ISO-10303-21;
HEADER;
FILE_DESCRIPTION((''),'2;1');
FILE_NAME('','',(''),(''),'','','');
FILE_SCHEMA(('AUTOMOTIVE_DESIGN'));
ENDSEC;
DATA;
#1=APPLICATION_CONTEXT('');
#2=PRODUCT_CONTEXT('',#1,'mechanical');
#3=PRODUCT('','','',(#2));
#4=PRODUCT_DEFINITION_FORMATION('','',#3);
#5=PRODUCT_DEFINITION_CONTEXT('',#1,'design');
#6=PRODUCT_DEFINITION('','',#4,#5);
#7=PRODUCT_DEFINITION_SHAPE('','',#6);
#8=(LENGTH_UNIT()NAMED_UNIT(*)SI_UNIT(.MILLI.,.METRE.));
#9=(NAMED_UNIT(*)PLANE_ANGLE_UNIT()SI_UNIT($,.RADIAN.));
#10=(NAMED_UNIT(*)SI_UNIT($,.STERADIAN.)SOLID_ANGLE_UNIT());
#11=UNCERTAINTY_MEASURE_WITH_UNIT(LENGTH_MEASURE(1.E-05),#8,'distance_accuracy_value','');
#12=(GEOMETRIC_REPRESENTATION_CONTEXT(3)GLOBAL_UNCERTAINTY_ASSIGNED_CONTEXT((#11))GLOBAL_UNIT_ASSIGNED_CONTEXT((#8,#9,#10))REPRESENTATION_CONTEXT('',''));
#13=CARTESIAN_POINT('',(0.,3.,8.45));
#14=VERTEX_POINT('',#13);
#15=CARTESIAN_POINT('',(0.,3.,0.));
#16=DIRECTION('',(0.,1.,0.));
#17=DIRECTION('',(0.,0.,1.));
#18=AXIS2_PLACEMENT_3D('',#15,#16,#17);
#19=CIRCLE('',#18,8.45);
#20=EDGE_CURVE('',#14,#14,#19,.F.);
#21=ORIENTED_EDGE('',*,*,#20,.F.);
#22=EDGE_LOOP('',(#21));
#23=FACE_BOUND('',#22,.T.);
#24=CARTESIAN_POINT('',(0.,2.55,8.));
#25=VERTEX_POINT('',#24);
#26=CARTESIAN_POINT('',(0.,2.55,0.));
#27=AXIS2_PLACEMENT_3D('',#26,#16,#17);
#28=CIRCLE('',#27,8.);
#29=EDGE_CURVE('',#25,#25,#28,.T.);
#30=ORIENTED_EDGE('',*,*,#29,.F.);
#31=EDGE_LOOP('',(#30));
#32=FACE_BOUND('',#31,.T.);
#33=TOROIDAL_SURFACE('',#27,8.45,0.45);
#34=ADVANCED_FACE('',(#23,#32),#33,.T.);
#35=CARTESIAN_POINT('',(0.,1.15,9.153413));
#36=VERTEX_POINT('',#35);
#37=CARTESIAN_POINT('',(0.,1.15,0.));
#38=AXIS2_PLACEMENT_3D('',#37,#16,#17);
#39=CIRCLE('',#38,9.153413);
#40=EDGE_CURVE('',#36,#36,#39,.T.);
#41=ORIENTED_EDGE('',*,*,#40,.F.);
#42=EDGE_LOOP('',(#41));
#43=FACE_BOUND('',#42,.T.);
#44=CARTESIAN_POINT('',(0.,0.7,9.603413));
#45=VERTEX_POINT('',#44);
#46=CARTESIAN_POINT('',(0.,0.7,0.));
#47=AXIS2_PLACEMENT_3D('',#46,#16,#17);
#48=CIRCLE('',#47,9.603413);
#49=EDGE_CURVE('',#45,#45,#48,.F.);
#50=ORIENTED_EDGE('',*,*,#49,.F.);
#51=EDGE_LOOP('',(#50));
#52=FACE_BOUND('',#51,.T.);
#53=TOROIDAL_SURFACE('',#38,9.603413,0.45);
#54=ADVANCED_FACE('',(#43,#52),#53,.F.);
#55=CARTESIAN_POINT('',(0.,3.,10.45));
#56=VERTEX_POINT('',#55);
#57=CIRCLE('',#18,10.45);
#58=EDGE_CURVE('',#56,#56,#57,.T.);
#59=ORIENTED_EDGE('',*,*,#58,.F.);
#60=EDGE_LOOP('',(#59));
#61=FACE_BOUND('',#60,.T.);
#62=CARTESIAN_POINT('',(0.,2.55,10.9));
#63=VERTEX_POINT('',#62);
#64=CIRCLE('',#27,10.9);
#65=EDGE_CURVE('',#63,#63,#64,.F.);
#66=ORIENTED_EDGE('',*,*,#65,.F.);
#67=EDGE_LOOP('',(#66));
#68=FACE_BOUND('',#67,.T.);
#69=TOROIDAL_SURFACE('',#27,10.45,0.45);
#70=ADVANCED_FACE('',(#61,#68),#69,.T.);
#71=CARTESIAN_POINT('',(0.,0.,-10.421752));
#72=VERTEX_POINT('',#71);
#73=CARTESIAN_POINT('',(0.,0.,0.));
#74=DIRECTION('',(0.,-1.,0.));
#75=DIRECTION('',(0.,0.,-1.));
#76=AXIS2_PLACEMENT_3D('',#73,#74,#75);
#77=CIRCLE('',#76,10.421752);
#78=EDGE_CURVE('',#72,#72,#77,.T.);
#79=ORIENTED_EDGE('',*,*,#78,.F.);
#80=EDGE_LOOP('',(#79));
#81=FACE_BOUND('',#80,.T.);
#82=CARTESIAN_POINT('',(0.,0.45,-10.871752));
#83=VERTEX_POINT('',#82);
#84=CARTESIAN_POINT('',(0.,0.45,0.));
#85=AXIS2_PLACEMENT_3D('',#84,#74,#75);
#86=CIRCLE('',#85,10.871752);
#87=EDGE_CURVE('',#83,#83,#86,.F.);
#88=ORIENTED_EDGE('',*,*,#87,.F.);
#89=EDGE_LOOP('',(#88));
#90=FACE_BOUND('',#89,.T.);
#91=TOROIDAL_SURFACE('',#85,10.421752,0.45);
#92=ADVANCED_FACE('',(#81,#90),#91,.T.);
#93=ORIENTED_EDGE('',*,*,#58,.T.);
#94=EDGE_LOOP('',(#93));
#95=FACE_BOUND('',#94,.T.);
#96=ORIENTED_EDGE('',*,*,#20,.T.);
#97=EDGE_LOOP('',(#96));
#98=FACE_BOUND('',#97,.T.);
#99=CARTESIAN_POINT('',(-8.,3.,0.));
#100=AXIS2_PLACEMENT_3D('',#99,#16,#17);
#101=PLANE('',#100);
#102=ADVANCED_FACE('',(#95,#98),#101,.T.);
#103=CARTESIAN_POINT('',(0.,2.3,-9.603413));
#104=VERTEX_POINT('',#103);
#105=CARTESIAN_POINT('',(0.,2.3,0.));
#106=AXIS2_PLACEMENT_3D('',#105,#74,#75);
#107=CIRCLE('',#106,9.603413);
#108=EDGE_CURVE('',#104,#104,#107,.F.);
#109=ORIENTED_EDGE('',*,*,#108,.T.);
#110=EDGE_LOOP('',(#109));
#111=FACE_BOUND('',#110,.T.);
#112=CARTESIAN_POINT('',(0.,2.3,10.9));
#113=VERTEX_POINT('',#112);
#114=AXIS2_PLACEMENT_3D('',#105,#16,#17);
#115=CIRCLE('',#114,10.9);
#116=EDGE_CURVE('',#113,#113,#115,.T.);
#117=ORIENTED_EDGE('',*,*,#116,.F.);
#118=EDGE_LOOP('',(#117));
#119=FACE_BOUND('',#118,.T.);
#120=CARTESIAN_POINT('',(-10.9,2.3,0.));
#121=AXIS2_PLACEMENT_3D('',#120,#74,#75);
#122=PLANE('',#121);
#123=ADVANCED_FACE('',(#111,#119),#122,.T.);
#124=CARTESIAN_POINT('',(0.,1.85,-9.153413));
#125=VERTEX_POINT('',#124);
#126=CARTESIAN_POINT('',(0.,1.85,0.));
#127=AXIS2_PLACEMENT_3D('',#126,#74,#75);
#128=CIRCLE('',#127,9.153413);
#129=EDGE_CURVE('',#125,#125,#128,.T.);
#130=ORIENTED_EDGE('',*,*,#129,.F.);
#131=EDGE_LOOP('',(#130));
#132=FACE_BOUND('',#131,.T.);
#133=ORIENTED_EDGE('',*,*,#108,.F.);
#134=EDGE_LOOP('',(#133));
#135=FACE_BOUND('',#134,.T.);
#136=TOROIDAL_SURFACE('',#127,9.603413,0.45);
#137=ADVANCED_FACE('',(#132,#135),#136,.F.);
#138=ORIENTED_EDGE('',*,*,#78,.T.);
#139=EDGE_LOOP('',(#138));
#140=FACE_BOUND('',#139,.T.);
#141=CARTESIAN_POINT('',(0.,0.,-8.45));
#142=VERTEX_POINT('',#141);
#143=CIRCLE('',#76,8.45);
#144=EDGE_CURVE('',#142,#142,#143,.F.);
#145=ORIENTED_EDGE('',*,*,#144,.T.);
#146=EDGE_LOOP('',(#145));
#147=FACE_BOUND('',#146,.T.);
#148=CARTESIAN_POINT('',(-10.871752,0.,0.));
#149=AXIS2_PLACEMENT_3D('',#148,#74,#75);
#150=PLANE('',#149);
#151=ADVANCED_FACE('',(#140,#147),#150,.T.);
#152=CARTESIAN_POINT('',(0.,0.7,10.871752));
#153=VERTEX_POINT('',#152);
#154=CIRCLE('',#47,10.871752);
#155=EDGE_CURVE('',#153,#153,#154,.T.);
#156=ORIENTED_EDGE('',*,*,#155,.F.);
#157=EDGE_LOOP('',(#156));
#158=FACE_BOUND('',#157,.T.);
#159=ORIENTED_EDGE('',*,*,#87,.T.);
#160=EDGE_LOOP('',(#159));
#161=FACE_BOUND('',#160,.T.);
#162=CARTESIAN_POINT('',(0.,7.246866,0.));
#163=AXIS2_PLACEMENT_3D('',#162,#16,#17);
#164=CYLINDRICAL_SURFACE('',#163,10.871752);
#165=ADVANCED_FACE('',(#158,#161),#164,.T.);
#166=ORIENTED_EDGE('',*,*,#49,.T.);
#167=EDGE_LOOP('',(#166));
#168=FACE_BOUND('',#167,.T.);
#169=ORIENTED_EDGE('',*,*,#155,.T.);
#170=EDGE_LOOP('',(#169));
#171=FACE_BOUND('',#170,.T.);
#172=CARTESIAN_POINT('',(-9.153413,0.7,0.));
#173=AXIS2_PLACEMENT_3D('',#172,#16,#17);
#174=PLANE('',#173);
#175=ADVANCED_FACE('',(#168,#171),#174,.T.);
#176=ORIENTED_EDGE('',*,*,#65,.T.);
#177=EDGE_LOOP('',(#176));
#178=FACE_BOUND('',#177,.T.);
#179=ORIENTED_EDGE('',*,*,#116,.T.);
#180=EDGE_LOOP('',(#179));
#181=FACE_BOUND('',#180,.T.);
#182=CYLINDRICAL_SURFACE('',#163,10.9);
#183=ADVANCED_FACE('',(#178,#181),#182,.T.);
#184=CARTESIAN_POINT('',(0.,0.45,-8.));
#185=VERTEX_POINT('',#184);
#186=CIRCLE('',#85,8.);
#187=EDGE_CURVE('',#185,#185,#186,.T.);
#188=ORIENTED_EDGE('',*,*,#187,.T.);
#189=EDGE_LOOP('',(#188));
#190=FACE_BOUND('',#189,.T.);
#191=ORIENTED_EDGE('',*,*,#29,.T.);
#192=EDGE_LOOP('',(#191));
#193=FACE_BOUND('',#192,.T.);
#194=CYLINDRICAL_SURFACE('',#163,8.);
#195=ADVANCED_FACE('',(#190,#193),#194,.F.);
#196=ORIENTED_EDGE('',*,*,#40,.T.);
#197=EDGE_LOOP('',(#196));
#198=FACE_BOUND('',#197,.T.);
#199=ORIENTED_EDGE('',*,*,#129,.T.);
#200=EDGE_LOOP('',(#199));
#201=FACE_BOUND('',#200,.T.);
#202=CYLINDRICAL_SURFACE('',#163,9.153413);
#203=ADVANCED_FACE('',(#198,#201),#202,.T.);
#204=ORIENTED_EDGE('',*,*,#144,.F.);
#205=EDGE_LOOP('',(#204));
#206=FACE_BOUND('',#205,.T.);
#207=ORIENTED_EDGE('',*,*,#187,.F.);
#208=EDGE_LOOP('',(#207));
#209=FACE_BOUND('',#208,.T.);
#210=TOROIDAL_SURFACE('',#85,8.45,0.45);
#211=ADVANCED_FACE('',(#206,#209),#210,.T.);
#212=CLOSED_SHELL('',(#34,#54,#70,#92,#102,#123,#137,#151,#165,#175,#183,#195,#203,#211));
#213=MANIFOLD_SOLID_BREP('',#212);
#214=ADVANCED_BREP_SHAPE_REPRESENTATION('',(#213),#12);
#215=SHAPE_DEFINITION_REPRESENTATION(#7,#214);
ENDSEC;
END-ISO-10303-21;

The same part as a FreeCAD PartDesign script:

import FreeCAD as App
import Part
import Sketcher
from FreeCAD import Vector
Q = App.Units.Quantity


def edges_at(feature, points):
    """Names of the edges that pass closest to the given points."""
    edges = feature.Shape.Edges
    near = lambda p: min(range(len(edges)), key=lambda i: edges[i].distToShape(Part.Vertex(*p))[0])
    return sorted({f"Edge{near(p) + 1}" for p in points})


def add_polygon(sketch, points):
    """Adds a closed chain of lines whose ends are joined by coincident constraints."""
    first, n = sketch.GeometryCount, len(points)
    for a, b in zip(points, points[1:] + points[:1]):
        sketch.addGeometry(Part.LineSegment(App.Vector(*a, 0), App.Vector(*b, 0)), False)
    for i in range(n):
        sketch.addConstraint(Sketcher.Constraint("Coincident", first + i, 2, first + (i + 1) % n, 1))

doc = App.newDocument("Part")
body = doc.addObject("PartDesign::Body", "Body")

sketch1 = doc.addObject("Sketcher::SketchObject", "Sketch")
body.addObject(sketch1)
sketch1.AttachmentSupport = (doc.XY_Plane, [""])
sketch1.MapMode = "FlatFace"
add_polygon(sketch1, [(-8, 0), (-8, 3), (-10.9, 3), (-10.9, 2.3), (-9.2, 2.3), (-9.2, 0.7), (-10.9, 0.7), (-10.9, 0)])
sketch1.addConstraint([
    Sketcher.Constraint("Vertical", 0),
    Sketcher.Constraint("Horizontal", 1),
    Sketcher.Constraint("Vertical", 2),
    Sketcher.Constraint("Horizontal", 3),
    Sketcher.Constraint("Vertical", 4),
    Sketcher.Constraint("Horizontal", 5),
    Sketcher.Constraint("Vertical", 6),
    Sketcher.Constraint("Horizontal", 7),
    Sketcher.Constraint("PointOnObject", 6, 2, -1),
    Sketcher.Constraint("Equal", 2, 6),
    Sketcher.Constraint("DistanceY", 0, 1, 0, 2, Q("3 mm")),
    Sketcher.Constraint("DistanceX", 1, 2, 1, 1, Q("2.9 mm")),
    Sketcher.Constraint("DistanceY", 2, 2, 2, 1, Q("0.7 mm")),
    Sketcher.Constraint("DistanceX", 0, 2, -1, 1, Q("8 mm")),
    Sketcher.Constraint("DistanceX", 5, 2, 5, 1, Q("1.718339 mm")),
    Sketcher.Constraint("DistanceX", 3, 1, 3, 2, Q("1.746587 mm")),
])
revolution = doc.addObject("PartDesign::Revolution", "Revolution")
body.addObject(revolution)
revolution.Profile = sketch1
revolution.ReferenceAxis = (sketch1, ["V_Axis"])
revolution.Angle = 360
doc.recompute()

fillet = doc.addObject("PartDesign::Fillet", "Fillet")
body.addObject(fillet)
fillet.Base = (revolution, edges_at(revolution, [
    (0, 0, -10.872),
    (0, 0.7, -9.153),
    (0, 2.3, -9.153),
    (0, 3, -10.9),
    (0, 3, -8),
    (0, 0, -8),
]))
fillet.Radius = 0.45

doc.recompute()
